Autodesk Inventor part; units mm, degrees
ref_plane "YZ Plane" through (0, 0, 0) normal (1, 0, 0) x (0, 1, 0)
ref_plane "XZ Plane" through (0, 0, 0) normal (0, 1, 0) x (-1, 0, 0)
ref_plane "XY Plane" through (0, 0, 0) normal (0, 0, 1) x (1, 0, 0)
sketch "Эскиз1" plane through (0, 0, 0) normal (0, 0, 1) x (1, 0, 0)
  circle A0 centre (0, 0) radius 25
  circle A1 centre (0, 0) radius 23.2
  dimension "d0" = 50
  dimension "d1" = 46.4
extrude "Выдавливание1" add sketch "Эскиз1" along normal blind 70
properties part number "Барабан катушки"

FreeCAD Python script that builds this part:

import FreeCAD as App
import Part
import Sketcher
from FreeCAD import Vector
Q = App.Units.Quantity

doc = App.newDocument("Part")
body = doc.addObject("PartDesign::Body", "Body")

# Sketch on XY plane
sketch1 = body.newObject("Sketcher::SketchObject", "Sketch")
sketch1.AttachmentSupport = (doc.getObject("XY_Plane"), [""])
sketch1.MapMode = "FlatFace"
sketch1.addGeometry([
    Part.Circle(Vector(0, 0, 0), Vector(0, 0, 1), 25),
    Part.Circle(Vector(0, 0, 0), Vector(0, 0, 1), 23.2),
], False)
sketch1.addConstraint([
    Sketcher.Constraint("Coincident", 0, 3, -1, 1),
    Sketcher.Constraint("Coincident", 1, 3, -1, 1),
    Sketcher.Constraint("Diameter", 0, Q("50 mm")),
    Sketcher.Constraint("Diameter", 1, Q("46.4 mm")),
])
pad1 = body.newObject("PartDesign::Pad", "Pad")
pad1.Profile = sketch1
pad1.Length = 70

doc.recompute()
